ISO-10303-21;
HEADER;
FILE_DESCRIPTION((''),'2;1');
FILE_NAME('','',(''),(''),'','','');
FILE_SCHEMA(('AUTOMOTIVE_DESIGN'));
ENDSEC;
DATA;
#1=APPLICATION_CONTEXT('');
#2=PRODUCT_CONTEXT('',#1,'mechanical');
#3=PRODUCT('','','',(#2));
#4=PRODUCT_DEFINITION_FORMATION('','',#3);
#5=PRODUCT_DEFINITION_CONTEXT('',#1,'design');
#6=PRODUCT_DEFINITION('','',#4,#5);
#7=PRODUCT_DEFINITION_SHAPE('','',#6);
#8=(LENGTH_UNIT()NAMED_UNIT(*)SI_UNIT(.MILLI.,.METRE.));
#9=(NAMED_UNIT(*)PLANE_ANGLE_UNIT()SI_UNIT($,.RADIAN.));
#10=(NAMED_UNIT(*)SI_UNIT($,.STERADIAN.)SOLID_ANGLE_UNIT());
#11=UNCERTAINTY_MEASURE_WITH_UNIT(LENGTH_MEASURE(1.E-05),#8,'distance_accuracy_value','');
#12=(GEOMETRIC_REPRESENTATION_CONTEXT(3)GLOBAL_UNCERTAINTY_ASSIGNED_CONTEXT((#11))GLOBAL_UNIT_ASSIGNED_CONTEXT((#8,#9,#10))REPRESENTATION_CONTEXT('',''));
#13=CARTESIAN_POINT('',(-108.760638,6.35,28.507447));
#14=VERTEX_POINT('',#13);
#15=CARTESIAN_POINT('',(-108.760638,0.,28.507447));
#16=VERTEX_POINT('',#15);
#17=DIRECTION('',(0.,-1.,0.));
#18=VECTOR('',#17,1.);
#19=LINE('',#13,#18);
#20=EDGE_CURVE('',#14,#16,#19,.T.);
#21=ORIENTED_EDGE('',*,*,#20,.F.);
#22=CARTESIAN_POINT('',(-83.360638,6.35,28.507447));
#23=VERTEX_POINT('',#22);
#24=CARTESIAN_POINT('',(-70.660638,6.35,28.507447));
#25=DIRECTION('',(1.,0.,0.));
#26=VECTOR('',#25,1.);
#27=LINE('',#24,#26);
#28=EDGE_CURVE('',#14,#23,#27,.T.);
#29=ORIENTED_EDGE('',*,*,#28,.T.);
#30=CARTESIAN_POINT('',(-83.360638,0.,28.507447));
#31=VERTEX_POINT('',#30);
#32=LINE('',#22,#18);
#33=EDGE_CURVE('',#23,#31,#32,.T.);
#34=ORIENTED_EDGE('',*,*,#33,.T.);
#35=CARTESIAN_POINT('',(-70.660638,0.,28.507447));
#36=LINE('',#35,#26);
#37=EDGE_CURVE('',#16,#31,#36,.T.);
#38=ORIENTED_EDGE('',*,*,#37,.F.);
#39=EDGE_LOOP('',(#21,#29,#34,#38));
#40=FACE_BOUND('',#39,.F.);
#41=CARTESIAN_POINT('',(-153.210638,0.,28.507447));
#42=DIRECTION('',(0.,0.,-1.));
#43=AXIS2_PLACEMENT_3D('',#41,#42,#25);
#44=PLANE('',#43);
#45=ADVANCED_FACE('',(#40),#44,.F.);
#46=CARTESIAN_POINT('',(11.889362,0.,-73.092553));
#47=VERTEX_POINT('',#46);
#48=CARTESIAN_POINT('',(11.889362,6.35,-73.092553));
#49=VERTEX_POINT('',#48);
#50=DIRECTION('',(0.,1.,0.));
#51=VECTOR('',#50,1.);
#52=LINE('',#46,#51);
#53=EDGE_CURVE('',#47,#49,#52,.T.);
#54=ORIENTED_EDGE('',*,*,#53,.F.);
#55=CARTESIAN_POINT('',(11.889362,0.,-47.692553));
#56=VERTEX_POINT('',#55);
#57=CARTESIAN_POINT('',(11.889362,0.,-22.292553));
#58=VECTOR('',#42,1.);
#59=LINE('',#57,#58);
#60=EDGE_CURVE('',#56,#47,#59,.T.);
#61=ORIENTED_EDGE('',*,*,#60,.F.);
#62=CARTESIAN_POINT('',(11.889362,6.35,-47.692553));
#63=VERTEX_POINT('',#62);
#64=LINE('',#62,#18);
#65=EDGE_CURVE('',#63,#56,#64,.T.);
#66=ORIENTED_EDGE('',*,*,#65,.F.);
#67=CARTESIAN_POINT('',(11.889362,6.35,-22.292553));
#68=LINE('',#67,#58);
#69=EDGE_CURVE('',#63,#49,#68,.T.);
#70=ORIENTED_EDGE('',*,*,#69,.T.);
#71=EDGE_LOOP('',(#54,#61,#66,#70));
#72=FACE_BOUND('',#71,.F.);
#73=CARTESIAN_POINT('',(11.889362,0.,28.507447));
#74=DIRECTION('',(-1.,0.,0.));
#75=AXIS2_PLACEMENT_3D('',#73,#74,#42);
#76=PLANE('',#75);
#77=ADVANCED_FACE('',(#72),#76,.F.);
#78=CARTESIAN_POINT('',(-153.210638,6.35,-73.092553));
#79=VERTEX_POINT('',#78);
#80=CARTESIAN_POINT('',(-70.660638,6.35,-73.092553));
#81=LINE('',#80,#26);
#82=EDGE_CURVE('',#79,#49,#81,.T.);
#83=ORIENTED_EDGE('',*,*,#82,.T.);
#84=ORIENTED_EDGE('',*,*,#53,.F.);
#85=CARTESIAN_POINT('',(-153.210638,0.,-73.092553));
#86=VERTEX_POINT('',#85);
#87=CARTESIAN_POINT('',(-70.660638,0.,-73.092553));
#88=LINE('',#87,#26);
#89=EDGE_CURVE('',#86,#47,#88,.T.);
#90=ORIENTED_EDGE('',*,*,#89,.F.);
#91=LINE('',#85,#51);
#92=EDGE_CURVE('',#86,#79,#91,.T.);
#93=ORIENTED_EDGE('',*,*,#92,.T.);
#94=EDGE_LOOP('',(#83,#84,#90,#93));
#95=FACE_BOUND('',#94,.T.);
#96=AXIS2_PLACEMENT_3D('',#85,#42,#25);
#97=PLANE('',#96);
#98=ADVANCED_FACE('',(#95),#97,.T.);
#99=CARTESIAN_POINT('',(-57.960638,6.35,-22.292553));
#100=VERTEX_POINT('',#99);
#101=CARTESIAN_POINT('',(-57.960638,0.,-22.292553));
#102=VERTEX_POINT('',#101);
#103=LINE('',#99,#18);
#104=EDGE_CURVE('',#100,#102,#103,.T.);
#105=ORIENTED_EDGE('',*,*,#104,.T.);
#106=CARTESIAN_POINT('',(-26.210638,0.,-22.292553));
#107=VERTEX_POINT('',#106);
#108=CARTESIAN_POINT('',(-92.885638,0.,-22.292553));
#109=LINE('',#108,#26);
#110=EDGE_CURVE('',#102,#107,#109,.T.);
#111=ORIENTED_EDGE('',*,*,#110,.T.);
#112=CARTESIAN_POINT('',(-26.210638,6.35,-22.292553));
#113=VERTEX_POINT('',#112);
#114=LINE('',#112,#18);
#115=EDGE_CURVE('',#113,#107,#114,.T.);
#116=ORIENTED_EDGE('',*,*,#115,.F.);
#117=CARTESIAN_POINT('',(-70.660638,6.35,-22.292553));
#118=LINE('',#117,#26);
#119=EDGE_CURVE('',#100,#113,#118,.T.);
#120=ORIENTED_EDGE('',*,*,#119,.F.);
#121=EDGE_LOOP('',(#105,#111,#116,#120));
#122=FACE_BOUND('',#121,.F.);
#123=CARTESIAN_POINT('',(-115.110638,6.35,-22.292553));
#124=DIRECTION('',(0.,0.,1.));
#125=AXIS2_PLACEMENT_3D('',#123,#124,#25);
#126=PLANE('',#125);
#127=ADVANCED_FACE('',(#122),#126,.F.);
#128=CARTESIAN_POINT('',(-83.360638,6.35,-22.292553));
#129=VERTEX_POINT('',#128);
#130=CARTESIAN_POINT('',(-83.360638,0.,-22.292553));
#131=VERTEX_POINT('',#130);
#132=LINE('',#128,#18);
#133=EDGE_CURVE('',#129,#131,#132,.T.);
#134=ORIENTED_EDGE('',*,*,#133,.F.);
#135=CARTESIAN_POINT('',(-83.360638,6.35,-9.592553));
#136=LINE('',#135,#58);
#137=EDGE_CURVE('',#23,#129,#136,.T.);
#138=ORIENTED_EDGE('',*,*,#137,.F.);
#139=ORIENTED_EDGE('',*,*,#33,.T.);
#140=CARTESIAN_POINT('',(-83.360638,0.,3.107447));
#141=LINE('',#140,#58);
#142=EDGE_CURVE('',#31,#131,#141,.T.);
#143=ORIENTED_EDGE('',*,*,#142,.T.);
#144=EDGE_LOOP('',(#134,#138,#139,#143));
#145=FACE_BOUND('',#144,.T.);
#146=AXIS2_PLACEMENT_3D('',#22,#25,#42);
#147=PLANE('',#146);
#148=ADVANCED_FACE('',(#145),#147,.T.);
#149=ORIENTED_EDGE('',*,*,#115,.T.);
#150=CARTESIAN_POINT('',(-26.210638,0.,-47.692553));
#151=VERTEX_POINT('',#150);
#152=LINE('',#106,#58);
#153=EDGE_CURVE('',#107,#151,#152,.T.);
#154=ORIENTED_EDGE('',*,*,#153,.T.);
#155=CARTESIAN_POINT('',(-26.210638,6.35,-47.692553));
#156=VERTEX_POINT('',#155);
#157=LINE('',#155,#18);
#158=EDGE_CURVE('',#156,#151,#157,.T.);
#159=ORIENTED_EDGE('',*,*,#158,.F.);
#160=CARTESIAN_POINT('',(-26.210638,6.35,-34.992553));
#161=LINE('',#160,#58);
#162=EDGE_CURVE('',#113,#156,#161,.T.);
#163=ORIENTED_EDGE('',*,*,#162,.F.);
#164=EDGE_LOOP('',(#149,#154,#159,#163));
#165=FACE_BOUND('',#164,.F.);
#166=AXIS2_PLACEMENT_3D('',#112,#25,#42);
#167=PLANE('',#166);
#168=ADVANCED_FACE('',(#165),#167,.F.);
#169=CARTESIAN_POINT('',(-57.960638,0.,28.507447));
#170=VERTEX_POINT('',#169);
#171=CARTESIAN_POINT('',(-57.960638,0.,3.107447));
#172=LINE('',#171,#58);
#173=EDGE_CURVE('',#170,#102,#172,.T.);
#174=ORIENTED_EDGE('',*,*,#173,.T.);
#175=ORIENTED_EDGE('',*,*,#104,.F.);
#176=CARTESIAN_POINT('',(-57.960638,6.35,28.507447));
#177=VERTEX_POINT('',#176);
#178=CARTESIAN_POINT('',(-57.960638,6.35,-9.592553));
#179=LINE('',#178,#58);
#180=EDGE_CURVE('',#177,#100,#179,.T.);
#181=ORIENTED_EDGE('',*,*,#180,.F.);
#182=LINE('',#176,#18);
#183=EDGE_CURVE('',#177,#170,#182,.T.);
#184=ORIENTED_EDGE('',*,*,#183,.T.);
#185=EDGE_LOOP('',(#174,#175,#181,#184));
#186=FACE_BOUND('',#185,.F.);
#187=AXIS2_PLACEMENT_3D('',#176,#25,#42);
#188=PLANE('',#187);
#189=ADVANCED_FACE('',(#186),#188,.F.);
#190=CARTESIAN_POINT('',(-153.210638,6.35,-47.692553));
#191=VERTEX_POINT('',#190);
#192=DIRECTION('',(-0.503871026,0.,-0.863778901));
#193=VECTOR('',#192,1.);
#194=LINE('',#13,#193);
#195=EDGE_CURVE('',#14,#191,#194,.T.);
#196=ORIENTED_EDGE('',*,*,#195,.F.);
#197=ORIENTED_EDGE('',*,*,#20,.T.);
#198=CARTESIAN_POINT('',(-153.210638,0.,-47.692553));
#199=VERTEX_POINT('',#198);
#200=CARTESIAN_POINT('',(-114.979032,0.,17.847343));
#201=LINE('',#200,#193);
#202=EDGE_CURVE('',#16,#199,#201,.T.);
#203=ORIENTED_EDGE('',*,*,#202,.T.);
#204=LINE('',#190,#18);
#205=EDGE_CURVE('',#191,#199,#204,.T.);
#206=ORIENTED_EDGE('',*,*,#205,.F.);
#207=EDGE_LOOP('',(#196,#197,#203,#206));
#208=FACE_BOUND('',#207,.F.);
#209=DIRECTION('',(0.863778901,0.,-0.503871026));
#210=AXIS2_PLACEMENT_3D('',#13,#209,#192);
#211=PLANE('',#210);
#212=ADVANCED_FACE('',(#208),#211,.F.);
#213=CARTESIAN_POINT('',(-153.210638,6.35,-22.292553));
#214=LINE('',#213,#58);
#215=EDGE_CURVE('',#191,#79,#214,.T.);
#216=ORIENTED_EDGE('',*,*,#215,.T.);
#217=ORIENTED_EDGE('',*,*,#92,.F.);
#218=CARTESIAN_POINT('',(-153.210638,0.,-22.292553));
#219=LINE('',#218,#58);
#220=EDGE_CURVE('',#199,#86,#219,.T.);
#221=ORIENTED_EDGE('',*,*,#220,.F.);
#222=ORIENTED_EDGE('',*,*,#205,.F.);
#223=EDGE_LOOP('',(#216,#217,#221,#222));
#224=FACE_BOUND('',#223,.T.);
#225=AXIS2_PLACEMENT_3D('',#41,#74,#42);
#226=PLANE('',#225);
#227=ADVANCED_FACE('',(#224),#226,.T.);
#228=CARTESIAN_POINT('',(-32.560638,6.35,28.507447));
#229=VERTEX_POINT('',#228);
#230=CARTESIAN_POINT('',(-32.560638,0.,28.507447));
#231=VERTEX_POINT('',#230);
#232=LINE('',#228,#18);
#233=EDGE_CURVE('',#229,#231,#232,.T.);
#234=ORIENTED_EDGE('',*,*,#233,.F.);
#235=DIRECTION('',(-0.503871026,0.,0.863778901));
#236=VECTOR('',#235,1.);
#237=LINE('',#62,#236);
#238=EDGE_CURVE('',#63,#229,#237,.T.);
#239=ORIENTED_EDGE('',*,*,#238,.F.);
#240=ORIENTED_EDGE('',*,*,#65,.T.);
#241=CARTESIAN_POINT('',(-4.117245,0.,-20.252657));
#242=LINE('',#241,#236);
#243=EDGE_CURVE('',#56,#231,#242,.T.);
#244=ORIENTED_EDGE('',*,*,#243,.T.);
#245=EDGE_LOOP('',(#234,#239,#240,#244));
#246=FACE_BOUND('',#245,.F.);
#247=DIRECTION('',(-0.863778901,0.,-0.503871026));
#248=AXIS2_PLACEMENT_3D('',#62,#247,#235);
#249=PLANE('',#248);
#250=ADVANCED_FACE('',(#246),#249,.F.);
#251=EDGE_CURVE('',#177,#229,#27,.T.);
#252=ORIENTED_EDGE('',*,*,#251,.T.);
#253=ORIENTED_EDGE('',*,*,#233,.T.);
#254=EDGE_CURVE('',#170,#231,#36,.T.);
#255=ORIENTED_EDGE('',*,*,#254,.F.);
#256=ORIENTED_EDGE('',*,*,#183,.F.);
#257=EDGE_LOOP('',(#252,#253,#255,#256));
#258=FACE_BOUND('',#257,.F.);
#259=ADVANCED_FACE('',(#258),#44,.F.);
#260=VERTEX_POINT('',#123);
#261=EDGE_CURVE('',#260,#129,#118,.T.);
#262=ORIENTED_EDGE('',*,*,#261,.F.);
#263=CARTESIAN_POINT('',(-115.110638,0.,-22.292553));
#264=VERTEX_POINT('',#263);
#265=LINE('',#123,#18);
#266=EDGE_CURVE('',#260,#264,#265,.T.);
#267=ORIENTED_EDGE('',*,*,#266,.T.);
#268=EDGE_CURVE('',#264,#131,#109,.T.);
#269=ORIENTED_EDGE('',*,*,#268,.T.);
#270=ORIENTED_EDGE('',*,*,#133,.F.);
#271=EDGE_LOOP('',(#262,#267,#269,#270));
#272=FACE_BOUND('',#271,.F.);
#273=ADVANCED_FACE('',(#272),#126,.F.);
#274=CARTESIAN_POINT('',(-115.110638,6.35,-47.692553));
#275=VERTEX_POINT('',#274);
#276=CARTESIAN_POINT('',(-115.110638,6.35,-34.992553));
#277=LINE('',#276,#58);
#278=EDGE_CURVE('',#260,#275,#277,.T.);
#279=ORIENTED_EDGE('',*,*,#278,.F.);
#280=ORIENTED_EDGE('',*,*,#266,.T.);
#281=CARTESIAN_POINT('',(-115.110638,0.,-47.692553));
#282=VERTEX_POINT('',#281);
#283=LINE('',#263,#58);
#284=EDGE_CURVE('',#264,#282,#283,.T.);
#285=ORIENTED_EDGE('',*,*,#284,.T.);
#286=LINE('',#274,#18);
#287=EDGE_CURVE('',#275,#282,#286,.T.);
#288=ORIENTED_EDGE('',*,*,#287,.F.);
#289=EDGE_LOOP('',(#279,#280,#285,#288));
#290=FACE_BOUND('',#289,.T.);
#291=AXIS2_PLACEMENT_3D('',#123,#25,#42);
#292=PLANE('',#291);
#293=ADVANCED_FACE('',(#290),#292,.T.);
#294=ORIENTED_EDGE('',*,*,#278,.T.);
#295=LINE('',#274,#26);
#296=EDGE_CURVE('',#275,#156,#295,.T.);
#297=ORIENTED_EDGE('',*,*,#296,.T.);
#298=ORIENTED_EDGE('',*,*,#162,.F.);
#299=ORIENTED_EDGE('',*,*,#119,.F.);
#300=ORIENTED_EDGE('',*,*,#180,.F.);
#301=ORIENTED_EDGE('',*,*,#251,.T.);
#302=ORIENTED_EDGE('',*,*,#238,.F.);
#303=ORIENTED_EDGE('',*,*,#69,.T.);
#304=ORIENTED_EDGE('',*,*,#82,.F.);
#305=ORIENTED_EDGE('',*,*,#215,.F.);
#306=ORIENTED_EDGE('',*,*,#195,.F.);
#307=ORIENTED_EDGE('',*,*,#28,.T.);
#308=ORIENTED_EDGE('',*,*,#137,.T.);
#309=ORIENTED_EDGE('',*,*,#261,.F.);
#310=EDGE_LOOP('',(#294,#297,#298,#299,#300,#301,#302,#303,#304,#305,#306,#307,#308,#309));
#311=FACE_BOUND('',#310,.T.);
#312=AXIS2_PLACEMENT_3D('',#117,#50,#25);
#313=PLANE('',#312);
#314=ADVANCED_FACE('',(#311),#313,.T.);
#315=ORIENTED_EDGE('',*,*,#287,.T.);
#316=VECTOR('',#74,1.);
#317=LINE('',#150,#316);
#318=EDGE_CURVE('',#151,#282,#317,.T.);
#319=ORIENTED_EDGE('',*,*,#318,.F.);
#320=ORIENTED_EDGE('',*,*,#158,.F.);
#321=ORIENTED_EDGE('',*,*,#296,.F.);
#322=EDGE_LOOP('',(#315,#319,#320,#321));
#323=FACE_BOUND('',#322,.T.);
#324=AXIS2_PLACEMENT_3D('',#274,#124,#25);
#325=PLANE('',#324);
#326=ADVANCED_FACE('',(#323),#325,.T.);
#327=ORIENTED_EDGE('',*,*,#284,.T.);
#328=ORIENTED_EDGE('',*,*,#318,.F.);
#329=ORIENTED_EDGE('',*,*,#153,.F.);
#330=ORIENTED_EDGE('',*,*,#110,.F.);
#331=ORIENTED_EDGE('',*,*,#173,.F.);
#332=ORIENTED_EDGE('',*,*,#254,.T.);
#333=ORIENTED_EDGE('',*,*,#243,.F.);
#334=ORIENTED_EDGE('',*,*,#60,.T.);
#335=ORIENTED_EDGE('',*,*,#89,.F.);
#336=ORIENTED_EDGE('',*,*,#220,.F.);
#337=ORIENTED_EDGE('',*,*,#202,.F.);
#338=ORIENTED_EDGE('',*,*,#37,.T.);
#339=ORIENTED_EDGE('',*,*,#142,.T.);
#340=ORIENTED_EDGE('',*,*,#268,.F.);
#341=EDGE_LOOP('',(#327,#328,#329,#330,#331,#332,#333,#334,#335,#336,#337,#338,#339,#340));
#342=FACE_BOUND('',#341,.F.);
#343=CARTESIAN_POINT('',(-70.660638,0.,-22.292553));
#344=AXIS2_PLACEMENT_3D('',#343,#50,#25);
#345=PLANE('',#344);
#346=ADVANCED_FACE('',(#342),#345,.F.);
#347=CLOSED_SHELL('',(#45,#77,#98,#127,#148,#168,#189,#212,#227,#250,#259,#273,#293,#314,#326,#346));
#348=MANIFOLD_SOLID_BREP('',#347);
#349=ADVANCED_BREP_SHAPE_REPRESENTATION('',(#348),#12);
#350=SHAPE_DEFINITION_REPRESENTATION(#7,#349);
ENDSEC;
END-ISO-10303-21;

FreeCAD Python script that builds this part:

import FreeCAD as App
import Part
import Sketcher

V = App.Vector
Q = App.Units.Quantity


def add_polygon(sketch, points):
    """Adds a closed chain of lines whose ends are joined by coincident constraints."""
    first, n = sketch.GeometryCount, len(points)
    for a, b in zip(points, points[1:] + points[:1]):
        sketch.addGeometry(Part.LineSegment(App.Vector(*a, 0), App.Vector(*b, 0)), False)
    for i in range(n):
        sketch.addConstraint(Sketcher.Constraint("Coincident", first + i, 2, first + (i + 1) % n, 1))

doc = App.newDocument("Part")
params = doc.addObject("Spreadsheet::Sheet", "Params")
for row, (alias, value) in enumerate([
    ("sketch1_height", "4 in"),
    ("sketch1_width", "6.5 in"),
    ("pad1_length", "0.25 in"),
    ("sketch2_width", "1 in"),
    ("sketch2_height", "3 in"),
    ("sketch3_height", "1 in"),
    ("sketch3_width", "3.5 in"),
    ("sketch4_height", "3 in"),
    ("sketch4_width", "1.75 in"),
    ("sketch5_height", "3 in"),
    ("sketch5_width", "1.75 in"),
], start=1):
    params.set(f"A{row}", alias)
    params.set(f"B{row}", "=" + value)
    params.setAlias(f"B{row}", alias)

body = doc.addObject("PartDesign::Body", "Body")

# Sketch on XZ plane
sketch1 = doc.addObject("Sketcher::SketchObject", "Sketch")
body.addObject(sketch1)
sketch1.AttachmentSupport = (doc.XZ_Plane, [""])
sketch1.MapMode = "FlatFace"
add_polygon(sketch1, [(-153, -73), (-153, 29), (12, 29), (12, -73)])  # lines 0-3
sketch1.addConstraint([
    Sketcher.Constraint("Vertical", 0),
    Sketcher.Constraint("Horizontal", 1),
    Sketcher.Constraint("Vertical", 2),
    Sketcher.Constraint("Horizontal", 3),
    Sketcher.Constraint("DistanceY", 0, 1, 0, 2, Q("4 in")),
    Sketcher.Constraint("DistanceX", 1, 1, 1, 2, Q("6.5 in")),
    Sketcher.Constraint("DistanceX", 0, 2, -1, 1, Q("153.210638 mm")),
    Sketcher.Constraint("DistanceY", -1, 1, 0, 2, Q("28.507447 mm")),
])
sketch1.setExpression("Constraints[8]", "Params.sketch1_height")
sketch1.setExpression("Constraints[9]", "Params.sketch1_width")
pad1 = doc.addObject("PartDesign::Pad", "Pad")
body.addObject(pad1)
pad1.Profile = sketch1
pad1.setExpression("Length", "Params.pad1_length")
pad1.Reversed = True

# Sketch on XZ plane
sketch2 = doc.addObject("Sketcher::SketchObject", "Sketch001")
body.addObject(sketch2)
sketch2.AttachmentSupport = (doc.XZ_Plane, [""])
sketch2.MapMode = "FlatFace"
sketch2.AttachmentOffset = App.Placement(V(0, 0, -0.25 * 25.4), App.Rotation())
add_polygon(sketch2, [(-83, -48), (-83, 29), (-58, 29), (-58, -48)])  # lines 0-3
sketch2.addConstraint([
    Sketcher.Constraint("Vertical", 0),
    Sketcher.Constraint("Horizontal", 1),
    Sketcher.Constraint("Vertical", 2),
    Sketcher.Constraint("Horizontal", 3),
    Sketcher.Constraint("DistanceX", 1, 1, 1, 2, Q("1 in")),
    Sketcher.Constraint("DistanceY", 0, 1, 0, 2, Q("3 in")),
    Sketcher.Constraint("DistanceX", 0, 2, -1, 1, Q("83.360638 mm")),
    Sketcher.Constraint("DistanceY", -1, 1, 0, 2, Q("28.507447 mm")),
])
sketch2.setExpression("Constraints[8]", "Params.sketch2_width")
sketch2.setExpression("Constraints[9]", "Params.sketch2_height")
pocket1 = doc.addObject("PartDesign::Pocket", "Pocket")
body.addObject(pocket1)
pocket1.Profile = sketch2
pocket1.Type = "ThroughAll"
pocket1.Reversed = True

# Sketch on XZ plane
sketch3 = doc.addObject("Sketcher::SketchObject", "Sketch002")
body.addObject(sketch3)
sketch3.AttachmentSupport = (doc.XZ_Plane, [""])
sketch3.MapMode = "FlatFace"
sketch3.AttachmentOffset = App.Placement(V(0, 0, -0.25 * 25.4), App.Rotation())
add_polygon(sketch3, [(-115, -48), (-115, -22), (-26, -22), (-26, -48)])  # lines 0-3
sketch3.addConstraint([
    Sketcher.Constraint("Vertical", 0),
    Sketcher.Constraint("Horizontal", 1),
    Sketcher.Constraint("Vertical", 2),
    Sketcher.Constraint("Horizontal", 3),
    Sketcher.Constraint("DistanceY", 0, 1, 0, 2, Q("1 in")),
    Sketcher.Constraint("DistanceX", 1, 1, 1, 2, Q("3.5 in")),
    Sketcher.Constraint("DistanceX", 0, 2, -1, 1, Q("115.110638 mm")),
    Sketcher.Constraint("DistanceY", 0, 2, -1, 1, Q("22.292553 mm")),
])
sketch3.setExpression("Constraints[8]", "Params.sketch3_height")
sketch3.setExpression("Constraints[9]", "Params.sketch3_width")
pocket2 = doc.addObject("PartDesign::Pocket", "Pocket001")
body.addObject(pocket2)
pocket2.Profile = sketch3
pocket2.Type = "ThroughAll"
pocket2.Reversed = True

# Sketch on XZ plane
sketch4 = doc.addObject("Sketcher::SketchObject", "Sketch003")
body.addObject(sketch4)
sketch4.AttachmentSupport = (doc.XZ_Plane, [""])
sketch4.MapMode = "FlatFace"
sketch4.AttachmentOffset = App.Placement(V(0, 0, -0.25 * 25.4), App.Rotation())
add_polygon(sketch4, [(-153, 29), (-109, 29), (-153, -48)])  # lines 0-2
sketch4.addConstraint([
    Sketcher.Constraint("Horizontal", 0),
    Sketcher.Constraint("Vertical", 2),
    Sketcher.Constraint("DistanceY", 2, 1, 2, 2, Q("3 in")),
    Sketcher.Constraint("DistanceX", 0, 1, 0, 2, Q("1.75 in")),
    Sketcher.Constraint("DistanceX", 0, 2, -1, 1, Q("108.760638 mm")),
    Sketcher.Constraint("DistanceY", -1, 1, 0, 2, Q("28.507447 mm")),
])
sketch4.setExpression("Constraints[5]", "Params.sketch4_height")
sketch4.setExpression("Constraints[6]", "Params.sketch4_width")
pocket3 = doc.addObject("PartDesign::Pocket", "Pocket002")
body.addObject(pocket3)
pocket3.Profile = sketch4
pocket3.Type = "ThroughAll"
pocket3.Reversed = True

# Sketch on XZ plane
sketch5 = doc.addObject("Sketcher::SketchObject", "Sketch004")
body.addObject(sketch5)
sketch5.AttachmentSupport = (doc.XZ_Plane, [""])
sketch5.MapMode = "FlatFace"
sketch5.AttachmentOffset = App.Placement(V(0, 0, -0.25 * 25.4), App.Rotation())
add_polygon(sketch5, [(12, 29), (12, -48), (-33, 29)])  # lines 0-2
sketch5.addConstraint([
    Sketcher.Constraint("Vertical", 0),
    Sketcher.Constraint("Horizontal", 2),
    Sketcher.Constraint("DistanceY", 0, 2, 0, 1, Q("3 in")),
    Sketcher.Constraint("DistanceX", 2, 1, 2, 2, Q("1.75 in")),
    Sketcher.Constraint("DistanceX", -1, 1, 0, 2, Q("11.889362 mm")),
    Sketcher.Constraint("DistanceY", 0, 2, -1, 1, Q("47.692553 mm")),
])
sketch5.setExpression("Constraints[5]", "Params.sketch5_height")
sketch5.setExpression("Constraints[6]", "Params.sketch5_width")
pocket4 = doc.addObject("PartDesign::Pocket", "Pocket003")
body.addObject(pocket4)
pocket4.Profile = sketch5
pocket4.Type = "ThroughAll"
pocket4.Reversed = True

doc.recompute()
